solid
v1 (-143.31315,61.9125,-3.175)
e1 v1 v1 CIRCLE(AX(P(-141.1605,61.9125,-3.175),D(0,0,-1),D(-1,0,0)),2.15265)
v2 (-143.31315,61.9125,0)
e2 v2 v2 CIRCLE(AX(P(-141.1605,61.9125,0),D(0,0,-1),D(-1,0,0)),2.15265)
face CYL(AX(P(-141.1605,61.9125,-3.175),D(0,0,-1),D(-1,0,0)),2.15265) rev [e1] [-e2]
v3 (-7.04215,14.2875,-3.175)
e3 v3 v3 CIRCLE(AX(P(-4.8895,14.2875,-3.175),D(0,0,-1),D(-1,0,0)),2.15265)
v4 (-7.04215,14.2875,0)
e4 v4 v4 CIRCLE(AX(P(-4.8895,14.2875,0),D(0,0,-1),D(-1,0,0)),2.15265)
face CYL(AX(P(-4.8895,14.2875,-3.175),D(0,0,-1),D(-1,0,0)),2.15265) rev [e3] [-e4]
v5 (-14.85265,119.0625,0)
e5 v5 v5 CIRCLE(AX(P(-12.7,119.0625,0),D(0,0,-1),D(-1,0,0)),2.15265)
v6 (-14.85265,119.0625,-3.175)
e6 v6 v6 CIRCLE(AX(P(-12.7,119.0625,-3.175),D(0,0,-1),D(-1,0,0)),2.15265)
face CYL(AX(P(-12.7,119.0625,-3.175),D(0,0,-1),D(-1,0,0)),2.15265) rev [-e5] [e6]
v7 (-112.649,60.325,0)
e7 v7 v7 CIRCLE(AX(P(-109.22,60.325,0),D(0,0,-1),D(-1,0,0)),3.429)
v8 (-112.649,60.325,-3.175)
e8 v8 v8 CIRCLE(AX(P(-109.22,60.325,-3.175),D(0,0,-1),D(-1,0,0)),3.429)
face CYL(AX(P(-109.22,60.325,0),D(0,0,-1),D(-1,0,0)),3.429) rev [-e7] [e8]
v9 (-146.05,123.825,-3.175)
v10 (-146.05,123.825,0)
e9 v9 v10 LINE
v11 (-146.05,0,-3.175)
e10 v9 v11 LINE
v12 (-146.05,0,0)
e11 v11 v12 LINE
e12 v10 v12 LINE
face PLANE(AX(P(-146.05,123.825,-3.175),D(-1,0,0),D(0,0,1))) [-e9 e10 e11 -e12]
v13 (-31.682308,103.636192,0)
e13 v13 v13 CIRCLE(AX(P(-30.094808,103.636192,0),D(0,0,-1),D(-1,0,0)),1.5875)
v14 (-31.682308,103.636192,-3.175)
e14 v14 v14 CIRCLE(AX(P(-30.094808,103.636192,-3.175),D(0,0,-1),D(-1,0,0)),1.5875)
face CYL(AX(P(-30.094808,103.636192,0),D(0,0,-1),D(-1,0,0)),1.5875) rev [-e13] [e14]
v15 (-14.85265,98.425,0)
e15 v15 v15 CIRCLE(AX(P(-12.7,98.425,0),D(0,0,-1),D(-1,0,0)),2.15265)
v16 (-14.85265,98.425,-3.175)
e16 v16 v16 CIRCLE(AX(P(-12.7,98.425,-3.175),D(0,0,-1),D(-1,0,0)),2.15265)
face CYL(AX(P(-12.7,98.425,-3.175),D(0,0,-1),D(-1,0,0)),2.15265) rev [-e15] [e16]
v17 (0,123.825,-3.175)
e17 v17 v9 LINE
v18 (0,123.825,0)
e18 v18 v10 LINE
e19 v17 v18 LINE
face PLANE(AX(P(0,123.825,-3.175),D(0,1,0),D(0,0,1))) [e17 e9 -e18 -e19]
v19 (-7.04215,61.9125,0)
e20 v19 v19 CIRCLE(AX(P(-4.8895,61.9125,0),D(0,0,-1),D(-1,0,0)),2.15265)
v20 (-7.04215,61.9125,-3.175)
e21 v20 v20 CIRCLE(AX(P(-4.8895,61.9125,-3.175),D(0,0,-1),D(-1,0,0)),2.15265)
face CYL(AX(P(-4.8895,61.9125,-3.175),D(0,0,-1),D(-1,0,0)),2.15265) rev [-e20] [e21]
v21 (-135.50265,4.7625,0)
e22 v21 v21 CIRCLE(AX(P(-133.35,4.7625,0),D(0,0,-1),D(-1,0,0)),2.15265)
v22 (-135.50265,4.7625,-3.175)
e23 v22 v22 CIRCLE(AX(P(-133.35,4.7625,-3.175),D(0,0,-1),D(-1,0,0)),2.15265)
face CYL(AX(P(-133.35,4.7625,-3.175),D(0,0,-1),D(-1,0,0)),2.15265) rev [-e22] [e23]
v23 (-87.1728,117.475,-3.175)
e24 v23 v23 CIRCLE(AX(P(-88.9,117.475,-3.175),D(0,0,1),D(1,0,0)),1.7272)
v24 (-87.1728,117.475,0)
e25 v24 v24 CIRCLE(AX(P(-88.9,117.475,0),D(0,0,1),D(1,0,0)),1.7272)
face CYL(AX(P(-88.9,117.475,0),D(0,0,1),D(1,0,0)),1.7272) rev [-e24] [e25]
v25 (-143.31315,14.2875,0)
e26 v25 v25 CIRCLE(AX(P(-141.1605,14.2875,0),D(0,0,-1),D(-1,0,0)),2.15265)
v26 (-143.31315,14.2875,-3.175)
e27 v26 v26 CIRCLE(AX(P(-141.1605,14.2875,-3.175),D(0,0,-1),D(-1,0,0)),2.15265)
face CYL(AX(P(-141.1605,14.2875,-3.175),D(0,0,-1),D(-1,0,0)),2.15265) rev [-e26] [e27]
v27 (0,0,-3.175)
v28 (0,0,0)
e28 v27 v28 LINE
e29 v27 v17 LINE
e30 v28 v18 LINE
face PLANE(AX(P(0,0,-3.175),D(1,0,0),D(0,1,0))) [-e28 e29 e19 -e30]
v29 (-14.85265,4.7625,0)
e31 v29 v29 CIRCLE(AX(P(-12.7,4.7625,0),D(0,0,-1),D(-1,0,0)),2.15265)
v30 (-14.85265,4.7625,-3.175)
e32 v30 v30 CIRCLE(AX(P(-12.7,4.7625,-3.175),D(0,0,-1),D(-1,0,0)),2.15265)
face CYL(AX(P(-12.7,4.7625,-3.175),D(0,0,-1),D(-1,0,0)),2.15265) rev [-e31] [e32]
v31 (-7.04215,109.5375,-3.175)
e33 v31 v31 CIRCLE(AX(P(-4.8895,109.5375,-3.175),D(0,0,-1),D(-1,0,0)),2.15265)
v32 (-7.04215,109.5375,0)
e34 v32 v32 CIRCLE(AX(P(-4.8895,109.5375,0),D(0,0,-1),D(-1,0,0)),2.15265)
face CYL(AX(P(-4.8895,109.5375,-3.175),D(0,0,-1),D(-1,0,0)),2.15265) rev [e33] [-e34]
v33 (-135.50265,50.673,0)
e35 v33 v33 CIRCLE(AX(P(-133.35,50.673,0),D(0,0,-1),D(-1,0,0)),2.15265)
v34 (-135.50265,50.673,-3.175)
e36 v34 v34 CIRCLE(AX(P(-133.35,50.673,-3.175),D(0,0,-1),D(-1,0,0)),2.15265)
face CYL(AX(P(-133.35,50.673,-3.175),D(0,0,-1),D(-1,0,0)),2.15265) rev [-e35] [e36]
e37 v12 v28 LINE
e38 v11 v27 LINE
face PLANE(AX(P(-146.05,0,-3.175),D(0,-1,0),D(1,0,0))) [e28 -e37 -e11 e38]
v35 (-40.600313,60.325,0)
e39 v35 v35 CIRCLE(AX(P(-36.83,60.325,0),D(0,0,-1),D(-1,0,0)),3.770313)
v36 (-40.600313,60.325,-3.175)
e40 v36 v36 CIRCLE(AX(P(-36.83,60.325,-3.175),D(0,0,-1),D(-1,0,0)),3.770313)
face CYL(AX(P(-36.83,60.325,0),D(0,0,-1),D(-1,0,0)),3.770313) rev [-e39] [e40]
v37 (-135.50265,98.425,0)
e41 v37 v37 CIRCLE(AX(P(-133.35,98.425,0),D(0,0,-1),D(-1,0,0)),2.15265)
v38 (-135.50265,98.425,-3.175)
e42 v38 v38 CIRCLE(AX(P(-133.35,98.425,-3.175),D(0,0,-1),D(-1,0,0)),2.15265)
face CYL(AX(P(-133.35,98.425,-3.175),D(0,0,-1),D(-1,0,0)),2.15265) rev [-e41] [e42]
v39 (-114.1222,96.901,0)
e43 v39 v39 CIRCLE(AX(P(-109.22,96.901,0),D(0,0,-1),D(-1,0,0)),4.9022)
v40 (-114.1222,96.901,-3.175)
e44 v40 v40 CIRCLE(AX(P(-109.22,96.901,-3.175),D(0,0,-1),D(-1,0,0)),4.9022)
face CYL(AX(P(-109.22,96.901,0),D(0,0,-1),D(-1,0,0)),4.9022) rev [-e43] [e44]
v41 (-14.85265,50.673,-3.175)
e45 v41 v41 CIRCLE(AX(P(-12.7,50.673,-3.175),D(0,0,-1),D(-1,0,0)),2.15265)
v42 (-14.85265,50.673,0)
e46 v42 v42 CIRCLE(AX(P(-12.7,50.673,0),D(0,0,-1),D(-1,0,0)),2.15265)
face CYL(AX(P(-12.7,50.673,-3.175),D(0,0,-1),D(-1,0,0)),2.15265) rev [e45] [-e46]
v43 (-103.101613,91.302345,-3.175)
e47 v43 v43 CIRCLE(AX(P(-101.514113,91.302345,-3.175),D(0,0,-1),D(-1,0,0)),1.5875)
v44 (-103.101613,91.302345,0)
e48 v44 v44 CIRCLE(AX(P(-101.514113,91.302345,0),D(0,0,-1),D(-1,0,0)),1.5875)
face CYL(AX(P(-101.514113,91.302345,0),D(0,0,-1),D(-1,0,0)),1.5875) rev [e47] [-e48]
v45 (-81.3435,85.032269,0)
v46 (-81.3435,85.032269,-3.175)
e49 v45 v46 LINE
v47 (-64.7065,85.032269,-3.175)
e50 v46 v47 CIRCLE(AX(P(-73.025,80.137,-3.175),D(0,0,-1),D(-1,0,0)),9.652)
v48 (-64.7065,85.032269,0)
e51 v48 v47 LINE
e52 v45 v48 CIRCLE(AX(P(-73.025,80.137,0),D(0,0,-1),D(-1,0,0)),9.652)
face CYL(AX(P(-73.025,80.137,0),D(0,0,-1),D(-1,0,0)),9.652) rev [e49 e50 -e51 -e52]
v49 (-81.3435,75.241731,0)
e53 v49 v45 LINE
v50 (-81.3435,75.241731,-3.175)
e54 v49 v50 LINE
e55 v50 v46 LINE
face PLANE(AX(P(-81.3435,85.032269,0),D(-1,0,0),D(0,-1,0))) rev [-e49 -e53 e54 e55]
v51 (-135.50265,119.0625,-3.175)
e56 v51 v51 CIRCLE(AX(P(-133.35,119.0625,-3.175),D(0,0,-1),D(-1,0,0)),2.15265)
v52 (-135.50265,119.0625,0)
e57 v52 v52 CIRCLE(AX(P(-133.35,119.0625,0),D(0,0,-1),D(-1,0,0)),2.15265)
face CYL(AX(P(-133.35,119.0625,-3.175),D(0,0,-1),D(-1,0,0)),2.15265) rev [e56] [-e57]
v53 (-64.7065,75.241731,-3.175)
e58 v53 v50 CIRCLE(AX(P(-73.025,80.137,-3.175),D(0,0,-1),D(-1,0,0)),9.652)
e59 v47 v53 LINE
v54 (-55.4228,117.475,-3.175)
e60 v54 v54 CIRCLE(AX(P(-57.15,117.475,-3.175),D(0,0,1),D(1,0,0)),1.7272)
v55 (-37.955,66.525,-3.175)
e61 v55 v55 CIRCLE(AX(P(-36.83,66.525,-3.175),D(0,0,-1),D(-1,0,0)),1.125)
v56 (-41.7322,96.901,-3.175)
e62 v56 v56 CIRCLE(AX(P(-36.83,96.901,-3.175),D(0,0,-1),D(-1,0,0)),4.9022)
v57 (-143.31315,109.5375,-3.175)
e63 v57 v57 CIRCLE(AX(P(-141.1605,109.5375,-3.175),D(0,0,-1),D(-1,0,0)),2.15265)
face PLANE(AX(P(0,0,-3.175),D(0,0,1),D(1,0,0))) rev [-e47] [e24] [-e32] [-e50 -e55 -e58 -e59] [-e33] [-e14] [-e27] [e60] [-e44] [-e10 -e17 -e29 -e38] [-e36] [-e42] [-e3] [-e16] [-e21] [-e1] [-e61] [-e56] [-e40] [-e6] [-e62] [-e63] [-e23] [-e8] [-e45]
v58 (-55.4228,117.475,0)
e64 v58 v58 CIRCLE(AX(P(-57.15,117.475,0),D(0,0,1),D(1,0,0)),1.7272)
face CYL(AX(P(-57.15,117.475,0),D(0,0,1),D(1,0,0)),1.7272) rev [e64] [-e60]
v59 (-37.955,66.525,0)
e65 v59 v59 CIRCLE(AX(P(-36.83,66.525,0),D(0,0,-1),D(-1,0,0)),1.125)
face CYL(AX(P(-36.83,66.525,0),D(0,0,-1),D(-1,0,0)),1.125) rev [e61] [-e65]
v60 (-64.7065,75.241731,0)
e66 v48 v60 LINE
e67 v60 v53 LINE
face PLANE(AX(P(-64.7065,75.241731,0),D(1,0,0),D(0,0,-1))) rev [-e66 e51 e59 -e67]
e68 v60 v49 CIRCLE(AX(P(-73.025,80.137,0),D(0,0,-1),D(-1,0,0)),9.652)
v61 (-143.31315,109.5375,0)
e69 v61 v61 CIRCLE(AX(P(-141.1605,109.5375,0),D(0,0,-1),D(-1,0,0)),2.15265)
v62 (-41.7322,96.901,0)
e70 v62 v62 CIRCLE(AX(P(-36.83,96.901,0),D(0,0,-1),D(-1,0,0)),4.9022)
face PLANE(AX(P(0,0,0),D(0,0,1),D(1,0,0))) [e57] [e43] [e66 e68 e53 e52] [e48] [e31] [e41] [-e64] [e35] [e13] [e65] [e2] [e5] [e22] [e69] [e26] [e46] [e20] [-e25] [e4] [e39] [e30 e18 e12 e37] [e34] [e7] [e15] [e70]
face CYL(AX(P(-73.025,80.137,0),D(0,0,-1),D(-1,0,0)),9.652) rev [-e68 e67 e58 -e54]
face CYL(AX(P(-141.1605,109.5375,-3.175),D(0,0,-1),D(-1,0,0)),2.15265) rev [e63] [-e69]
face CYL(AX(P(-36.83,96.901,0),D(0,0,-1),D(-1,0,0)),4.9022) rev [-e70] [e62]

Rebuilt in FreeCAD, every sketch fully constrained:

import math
import FreeCAD as App
import Part
import Sketcher
from FreeCAD import Vector
Q = App.Units.Quantity


def add_polygon(sketch, points):
    """Adds a closed chain of lines whose ends are joined by coincident constraints."""
    first, n = sketch.GeometryCount, len(points)
    for a, b in zip(points, points[1:] + points[:1]):
        sketch.addGeometry(Part.LineSegment(App.Vector(*a, 0), App.Vector(*b, 0)), False)
    for i in range(n):
        sketch.addConstraint(Sketcher.Constraint("Coincident", first + i, 2, first + (i + 1) % n, 1))

doc = App.newDocument("Part")
params = doc.addObject("Spreadsheet::Sheet", "Params")
for row, (alias, value) in enumerate([
    ("sketch1_width", "5.75 in"),
    ("sketch1_height", "4.875 in"),
    ("pad1_length", "0.125 in"),
    ("hole_diameter", "0.1695 in"),
    ("sketch3_diameter", "0.27 in"),
    ("sketch3_radius", "0.38 in"),
    ("sketch3_diameter2", "0.386 in"),
    ("sketch3_diameter3", "0.296875 in"),
    ("sketch3_diameter4", "0.125 in"),
    ("sketch4_diameter", "0.136 in"),
    ("hole2_diameter", "0.136 in"),
], start=1):
    params.set(f"A{row}", alias)
    params.set(f"B{row}", "=" + value)
    params.setAlias(f"B{row}", alias)

body = doc.addObject("PartDesign::Body", "Body")

# Sketch on XY plane
sketch1 = body.newObject("Sketcher::SketchObject", "Sketch")
sketch1.AttachmentSupport = (doc.getObject("XY_Plane"), [""])
sketch1.MapMode = "FlatFace"
add_polygon(sketch1, [(-146, 124), (-146, 0), (0, 0), (0, 124)])  # lines 0-3
sketch1.addConstraint([
    Sketcher.Constraint("Vertical", 0),
    Sketcher.Constraint("Horizontal", 1),
    Sketcher.Constraint("Vertical", 2),
    Sketcher.Constraint("Horizontal", 3),
    Sketcher.Constraint("Coincident", 1, 2, -1, 1),
    Sketcher.Constraint("DistanceX", 1, 1, 1, 2, Q("5.75 in")),
    Sketcher.Constraint("DistanceY", 0, 2, 0, 1, Q("4.875 in")),
])
sketch1.setExpression("Constraints[9]", "Params.sketch1_width")
sketch1.setExpression("Constraints[10]", "Params.sketch1_height")
pad1 = body.newObject("PartDesign::Pad", "Pad")
pad1.Profile = sketch1
pad1.setExpression("Length", "Params.pad1_length")
pad1.Reversed = True

# Sketch on XY plane
sketch2 = body.newObject("Sketcher::SketchObject", "Sketch001")
sketch2.AttachmentSupport = (doc.getObject("XY_Plane"), [""])
sketch2.MapMode = "FlatFace"
sketch2.AttachmentOffset = App.Placement(Vector(0, 0, -0.125 * 25.4), App.Rotation())
sketch2.addGeometry([
    Part.Circle(Vector(-12.7, 119.1, 0), Vector(0, 0, 1), 2.2),  # 0
    Part.Circle(Vector(-133.3, 119.1, 0), Vector(0, 0, 1), 2.2),  # 1
    Part.Circle(Vector(-141.2, 109.5, 0), Vector(0, 0, 1), 2.2),  # 2
    Part.Circle(Vector(-133.3, 98.4, 0), Vector(0, 0, 1), 2.2),  # 3
    Part.Circle(Vector(-141.2, 61.9, 0), Vector(0, 0, 1), 2.2),  # 4
    Part.Circle(Vector(-133.3, 50.7, 0), Vector(0, 0, 1), 2.2),  # 5
    Part.Circle(Vector(-133.3, 4.8, 0), Vector(0, 0, 1), 2.2),  # 6
    Part.Circle(Vector(-12.7, 4.8, 0), Vector(0, 0, 1), 2.2),  # 7
    Part.Circle(Vector(-12.7, 50.7, 0), Vector(0, 0, 1), 2.2),  # 8
    Part.Circle(Vector(-12.7, 98.4, 0), Vector(0, 0, 1), 2.2),  # 9
    Part.Circle(Vector(-4.9, 109.5, 0), Vector(0, 0, 1), 2.2),  # 10
    Part.Circle(Vector(-141.2, 14.3, 0), Vector(0, 0, 1), 2.2),  # 11
    Part.Circle(Vector(-4.9, 14.3, 0), Vector(0, 0, 1), 2.2),  # 12
    Part.Circle(Vector(-4.9, 61.9, 0), Vector(0, 0, 1), 2.2),  # 13
], False)
sketch2.addConstraint([
    Sketcher.Constraint("Equal", 0, 1),
    Sketcher.Constraint("Equal", 1, 2),
    Sketcher.Constraint("Equal", 2, 3),
    Sketcher.Constraint("Equal", 3, 4),
    Sketcher.Constraint("Equal", 4, 5),
    Sketcher.Constraint("Equal", 5, 6),
    Sketcher.Constraint("Equal", 6, 7),
    Sketcher.Constraint("Equal", 7, 8),
    Sketcher.Constraint("Equal", 8, 9),
    Sketcher.Constraint("Equal", 9, 10),
    Sketcher.Constraint("Equal", 10, 11),
    Sketcher.Constraint("Equal", 11, 12),
    Sketcher.Constraint("Equal", 12, 13),
    Sketcher.Constraint("Horizontal", 0, 3, 1, 3),
    Sketcher.Constraint("Horizontal", 6, 3, 7, 3),
    Sketcher.Constraint("Horizontal", 5, 3, 8, 3),
    Sketcher.Constraint("Horizontal", 3, 3, 9, 3),
    Sketcher.Constraint("Horizontal", 2, 3, 10, 3),
    Sketcher.Constraint("Horizontal", 11, 3, 12, 3),
    Sketcher.Constraint("Horizontal", 4, 3, 13, 3),
    Sketcher.Constraint("Vertical", 1, 3, 3, 3),
    Sketcher.Constraint("Vertical", 2, 3, 4, 3),
    Sketcher.Constraint("Vertical", 3, 3, 5, 3),
    Sketcher.Constraint("Vertical", 5, 3, 6, 3),
    Sketcher.Constraint("Vertical", 0, 3, 7, 3),
    Sketcher.Constraint("Vertical", 7, 3, 8, 3),
    Sketcher.Constraint("Vertical", 8, 3, 9, 3),
    Sketcher.Constraint("Vertical", 4, 3, 11, 3),
    Sketcher.Constraint("Vertical", 10, 3, 12, 3),
    Sketcher.Constraint("Vertical", 12, 3, 13, 3),
    Sketcher.Constraint("Diameter", 0, Q("0.1695 in")),
    Sketcher.Constraint("DistanceX", 0, 3, -1, 1, Q("0.5 in")),
    Sketcher.Constraint("DistanceY", 6, 3, 1, 3, Q("4.5 in")),
    Sketcher.Constraint("DistanceX", 1, 3, -1, 1, Q("5.25 in")),
    Sketcher.Constraint("DistanceY", 4, 3, 1, 3, Q("2.25 in")),
    Sketcher.Constraint("DistanceY", 5, 3, 3, 3, Q("1.88 in")),
    Sketcher.Constraint("DistanceY", 11, 3, 2, 3, Q("3.75 in")),
    Sketcher.Constraint("DistanceY", -1, 1, 0, 3, Q("4.6875 in")),
    Sketcher.Constraint("DistanceY", -1, 1, 2, 3, Q("4.3125 in")),
    Sketcher.Constraint("DistanceY", -1, 1, 3, 3, Q("3.875 in")),
    Sketcher.Constraint("DistanceX", 2, 3, -1, 1, Q("5.5575 in")),
    Sketcher.Constraint("DistanceX", 10, 3, -1, 1, Q("0.1925 in")),
])
doc.recompute()
hole = body.newObject("PartDesign::Hole", "Hole")
hole.Profile = sketch2
hole.ThreadType = "None"
hole.setExpression("Diameter", "Params.hole_diameter")
hole.DepthType = "ThroughAll"
hole.Reversed = True

# Sketch on XY plane
sketch3 = body.newObject("Sketcher::SketchObject", "Sketch002")
sketch3.AttachmentSupport = (doc.getObject("XY_Plane"), [""])
sketch3.MapMode = "FlatFace"
sketch3.AttachmentOffset = App.Placement(Vector(0, 0, -0.125 * 25.4), App.Rotation())
sketch3.addGeometry([
    Part.Circle(Vector(-36.8, 96.9, 0), Vector(0, 0, 1), 4.9),  # 0
    Part.Circle(Vector(-36.8, 60.3, 0), Vector(0, 0, 1), 3.8),  # 1
    Part.Circle(Vector(-109.2, 60.3, 0), Vector(0, 0, 1), 3.4),  # 2
    Part.Circle(Vector(-109.2, 96.9, 0), Vector(0, 0, 1), 4.9),  # 3
    Part.Circle(Vector(-36.8, 66.5, 0), Vector(0, 0, 1), 1.1),  # 4
    Part.Circle(Vector(-101.5, 91.3, 0), Vector(0, 0, 1), 1.6),  # 5
    Part.Circle(Vector(-30.1, 103.6, 0), Vector(0, 0, 1), 1.6),  # 6
    Part.LineSegment(Vector(-81.3, 75.2, 0), Vector(-81.3, 85, 0)),  # 7
    Part.ArcOfCircle(Part.Circle(Vector(-73, 80.1, 0), Vector(0, 0, 1), 9.7), math.radians(30), math.radians(150)),  # 8
    Part.LineSegment(Vector(-64.7, 85, 0), Vector(-64.7, 75.2, 0)),  # 9
    Part.ArcOfCircle(Part.Circle(Vector(-73, 80.1, 0), Vector(0, 0, 1), 9.7), math.radians(-150), math.radians(-30)),  # 10
], False)
sketch3.addConstraint([
    Sketcher.Constraint("Coincident", 7, 2, 8, 2),
    Sketcher.Constraint("Coincident", 8, 1, 9, 1),
    Sketcher.Constraint("Coincident", 9, 2, 10, 2),
    Sketcher.Constraint("Coincident", 10, 1, 7, 1),
    Sketcher.Constraint("Vertical", 7),
    Sketcher.Constraint("Vertical", 9),
    Sketcher.Constraint("Coincident", 10, 3, 8, 3),
    Sketcher.Constraint("Equal", 0, 3),
    Sketcher.Constraint("Equal", 5, 6),
    Sketcher.Constraint("Equal", 8, 10),
    Sketcher.Constraint("Horizontal", 1, 3, 2, 3),
    Sketcher.Constraint("Horizontal", 0, 3, 3, 3),
    Sketcher.Constraint("Horizontal", 7, 2, 8, 1),
    Sketcher.Constraint("Vertical", 0, 3, 1, 3),
    Sketcher.Constraint("Vertical", 2, 3, 3, 3),
    Sketcher.Constraint("Vertical", 1, 3, 4, 3),
    Sketcher.Constraint("Diameter", 2, Q("0.27 in")),
    Sketcher.Constraint("Radius", 8, Q("0.38 in")),
    Sketcher.Constraint("Diameter", 0, Q("0.386 in")),
    Sketcher.Constraint("Diameter", 1, Q("0.296875 in")),
    Sketcher.Constraint("Diameter", 5, Q("0.125 in")),
    Sketcher.Constraint("DistanceX", 2, 3, -1, 1, Q("4.3 in")),
    Sketcher.Constraint("Diameter", 4, 2.25),
    Sketcher.Constraint("DistanceX", 0, 3, -1, 1, Q("1.45 in")),
    Sketcher.Constraint("DistanceY", 1, 3, 0, 3, Q("1.44 in")),
    Sketcher.Constraint("DistanceY", 8, 3, 3, 3, Q("0.66 in")),
    Sketcher.Constraint("DistanceY", -1, 1, 0, 3, Q("3.815 in")),
    Sketcher.Constraint("DistanceX", 8, 3, -1, 1, Q("2.875 in")),
    Sketcher.Constraint("DistanceX", 7, 2, 8, 1, Q("0.655 in")),
    Sketcher.Constraint("DistanceY", -1, 1, 4, 3, 66.525),
    Sketcher.Constraint("DistanceX", 5, 3, -1, 1, 101.514113),
    Sketcher.Constraint("DistanceY", -1, 1, 5, 3, 91.302345),
    Sketcher.Constraint("DistanceX", 6, 3, -1, 1, 30.094808),
    Sketcher.Constraint("DistanceY", -1, 1, 6, 3, 103.636192),
])
sketch3.setExpression("Constraints[16]", "Params.sketch3_diameter")
sketch3.setExpression("Constraints[17]", "Params.sketch3_radius")
sketch3.setExpression("Constraints[18]", "Params.sketch3_diameter2")
sketch3.setExpression("Constraints[19]", "Params.sketch3_diameter3")
sketch3.setExpression("Constraints[20]", "Params.sketch3_diameter4")
pocket1 = body.newObject("PartDesign::Pocket", "Pocket")
pocket1.Profile = sketch3
pocket1.Type = "ThroughAll"
pocket1.Reversed = True

# Sketch on XY plane
sketch4 = body.newObject("Sketcher::SketchObject", "Sketch003")
sketch4.AttachmentSupport = (doc.getObject("XY_Plane"), [""])
sketch4.MapMode = "FlatFace"
sketch4.addGeometry([
    Part.Circle(Vector(-88.9, 117.5, 0), Vector(0, 0, 1), 1.7),
    Part.Circle(Vector(-57.1, 117.5, 0), Vector(0, 0, 1), 1.7),
], False)
sketch4.addConstraint([
    Sketcher.Constraint("Equal", 0, 1),
    Sketcher.Constraint("Horizontal", 0, 3, 1, 3),
    Sketcher.Constraint("Diameter", 0, Q("0.136 in")),
    Sketcher.Constraint("DistanceX", 0, 3, -1, 1, Q("3.5 in")),
    Sketcher.Constraint("DistanceX", 1, 3, -1, 1, Q("2.25 in")),
    Sketcher.Constraint("DistanceY", -1, 1, 0, 3, Q("4.625 in")),
])
sketch4.setExpression("Constraints[2]", "Params.sketch4_diameter")
doc.recompute()
hole2 = body.newObject("PartDesign::Hole", "Hole001")
hole2.Profile = sketch4
hole2.ThreadType = "None"
hole2.setExpression("Diameter", "Params.hole2_diameter")
hole2.DepthType = "ThroughAll"

doc.recompute()
